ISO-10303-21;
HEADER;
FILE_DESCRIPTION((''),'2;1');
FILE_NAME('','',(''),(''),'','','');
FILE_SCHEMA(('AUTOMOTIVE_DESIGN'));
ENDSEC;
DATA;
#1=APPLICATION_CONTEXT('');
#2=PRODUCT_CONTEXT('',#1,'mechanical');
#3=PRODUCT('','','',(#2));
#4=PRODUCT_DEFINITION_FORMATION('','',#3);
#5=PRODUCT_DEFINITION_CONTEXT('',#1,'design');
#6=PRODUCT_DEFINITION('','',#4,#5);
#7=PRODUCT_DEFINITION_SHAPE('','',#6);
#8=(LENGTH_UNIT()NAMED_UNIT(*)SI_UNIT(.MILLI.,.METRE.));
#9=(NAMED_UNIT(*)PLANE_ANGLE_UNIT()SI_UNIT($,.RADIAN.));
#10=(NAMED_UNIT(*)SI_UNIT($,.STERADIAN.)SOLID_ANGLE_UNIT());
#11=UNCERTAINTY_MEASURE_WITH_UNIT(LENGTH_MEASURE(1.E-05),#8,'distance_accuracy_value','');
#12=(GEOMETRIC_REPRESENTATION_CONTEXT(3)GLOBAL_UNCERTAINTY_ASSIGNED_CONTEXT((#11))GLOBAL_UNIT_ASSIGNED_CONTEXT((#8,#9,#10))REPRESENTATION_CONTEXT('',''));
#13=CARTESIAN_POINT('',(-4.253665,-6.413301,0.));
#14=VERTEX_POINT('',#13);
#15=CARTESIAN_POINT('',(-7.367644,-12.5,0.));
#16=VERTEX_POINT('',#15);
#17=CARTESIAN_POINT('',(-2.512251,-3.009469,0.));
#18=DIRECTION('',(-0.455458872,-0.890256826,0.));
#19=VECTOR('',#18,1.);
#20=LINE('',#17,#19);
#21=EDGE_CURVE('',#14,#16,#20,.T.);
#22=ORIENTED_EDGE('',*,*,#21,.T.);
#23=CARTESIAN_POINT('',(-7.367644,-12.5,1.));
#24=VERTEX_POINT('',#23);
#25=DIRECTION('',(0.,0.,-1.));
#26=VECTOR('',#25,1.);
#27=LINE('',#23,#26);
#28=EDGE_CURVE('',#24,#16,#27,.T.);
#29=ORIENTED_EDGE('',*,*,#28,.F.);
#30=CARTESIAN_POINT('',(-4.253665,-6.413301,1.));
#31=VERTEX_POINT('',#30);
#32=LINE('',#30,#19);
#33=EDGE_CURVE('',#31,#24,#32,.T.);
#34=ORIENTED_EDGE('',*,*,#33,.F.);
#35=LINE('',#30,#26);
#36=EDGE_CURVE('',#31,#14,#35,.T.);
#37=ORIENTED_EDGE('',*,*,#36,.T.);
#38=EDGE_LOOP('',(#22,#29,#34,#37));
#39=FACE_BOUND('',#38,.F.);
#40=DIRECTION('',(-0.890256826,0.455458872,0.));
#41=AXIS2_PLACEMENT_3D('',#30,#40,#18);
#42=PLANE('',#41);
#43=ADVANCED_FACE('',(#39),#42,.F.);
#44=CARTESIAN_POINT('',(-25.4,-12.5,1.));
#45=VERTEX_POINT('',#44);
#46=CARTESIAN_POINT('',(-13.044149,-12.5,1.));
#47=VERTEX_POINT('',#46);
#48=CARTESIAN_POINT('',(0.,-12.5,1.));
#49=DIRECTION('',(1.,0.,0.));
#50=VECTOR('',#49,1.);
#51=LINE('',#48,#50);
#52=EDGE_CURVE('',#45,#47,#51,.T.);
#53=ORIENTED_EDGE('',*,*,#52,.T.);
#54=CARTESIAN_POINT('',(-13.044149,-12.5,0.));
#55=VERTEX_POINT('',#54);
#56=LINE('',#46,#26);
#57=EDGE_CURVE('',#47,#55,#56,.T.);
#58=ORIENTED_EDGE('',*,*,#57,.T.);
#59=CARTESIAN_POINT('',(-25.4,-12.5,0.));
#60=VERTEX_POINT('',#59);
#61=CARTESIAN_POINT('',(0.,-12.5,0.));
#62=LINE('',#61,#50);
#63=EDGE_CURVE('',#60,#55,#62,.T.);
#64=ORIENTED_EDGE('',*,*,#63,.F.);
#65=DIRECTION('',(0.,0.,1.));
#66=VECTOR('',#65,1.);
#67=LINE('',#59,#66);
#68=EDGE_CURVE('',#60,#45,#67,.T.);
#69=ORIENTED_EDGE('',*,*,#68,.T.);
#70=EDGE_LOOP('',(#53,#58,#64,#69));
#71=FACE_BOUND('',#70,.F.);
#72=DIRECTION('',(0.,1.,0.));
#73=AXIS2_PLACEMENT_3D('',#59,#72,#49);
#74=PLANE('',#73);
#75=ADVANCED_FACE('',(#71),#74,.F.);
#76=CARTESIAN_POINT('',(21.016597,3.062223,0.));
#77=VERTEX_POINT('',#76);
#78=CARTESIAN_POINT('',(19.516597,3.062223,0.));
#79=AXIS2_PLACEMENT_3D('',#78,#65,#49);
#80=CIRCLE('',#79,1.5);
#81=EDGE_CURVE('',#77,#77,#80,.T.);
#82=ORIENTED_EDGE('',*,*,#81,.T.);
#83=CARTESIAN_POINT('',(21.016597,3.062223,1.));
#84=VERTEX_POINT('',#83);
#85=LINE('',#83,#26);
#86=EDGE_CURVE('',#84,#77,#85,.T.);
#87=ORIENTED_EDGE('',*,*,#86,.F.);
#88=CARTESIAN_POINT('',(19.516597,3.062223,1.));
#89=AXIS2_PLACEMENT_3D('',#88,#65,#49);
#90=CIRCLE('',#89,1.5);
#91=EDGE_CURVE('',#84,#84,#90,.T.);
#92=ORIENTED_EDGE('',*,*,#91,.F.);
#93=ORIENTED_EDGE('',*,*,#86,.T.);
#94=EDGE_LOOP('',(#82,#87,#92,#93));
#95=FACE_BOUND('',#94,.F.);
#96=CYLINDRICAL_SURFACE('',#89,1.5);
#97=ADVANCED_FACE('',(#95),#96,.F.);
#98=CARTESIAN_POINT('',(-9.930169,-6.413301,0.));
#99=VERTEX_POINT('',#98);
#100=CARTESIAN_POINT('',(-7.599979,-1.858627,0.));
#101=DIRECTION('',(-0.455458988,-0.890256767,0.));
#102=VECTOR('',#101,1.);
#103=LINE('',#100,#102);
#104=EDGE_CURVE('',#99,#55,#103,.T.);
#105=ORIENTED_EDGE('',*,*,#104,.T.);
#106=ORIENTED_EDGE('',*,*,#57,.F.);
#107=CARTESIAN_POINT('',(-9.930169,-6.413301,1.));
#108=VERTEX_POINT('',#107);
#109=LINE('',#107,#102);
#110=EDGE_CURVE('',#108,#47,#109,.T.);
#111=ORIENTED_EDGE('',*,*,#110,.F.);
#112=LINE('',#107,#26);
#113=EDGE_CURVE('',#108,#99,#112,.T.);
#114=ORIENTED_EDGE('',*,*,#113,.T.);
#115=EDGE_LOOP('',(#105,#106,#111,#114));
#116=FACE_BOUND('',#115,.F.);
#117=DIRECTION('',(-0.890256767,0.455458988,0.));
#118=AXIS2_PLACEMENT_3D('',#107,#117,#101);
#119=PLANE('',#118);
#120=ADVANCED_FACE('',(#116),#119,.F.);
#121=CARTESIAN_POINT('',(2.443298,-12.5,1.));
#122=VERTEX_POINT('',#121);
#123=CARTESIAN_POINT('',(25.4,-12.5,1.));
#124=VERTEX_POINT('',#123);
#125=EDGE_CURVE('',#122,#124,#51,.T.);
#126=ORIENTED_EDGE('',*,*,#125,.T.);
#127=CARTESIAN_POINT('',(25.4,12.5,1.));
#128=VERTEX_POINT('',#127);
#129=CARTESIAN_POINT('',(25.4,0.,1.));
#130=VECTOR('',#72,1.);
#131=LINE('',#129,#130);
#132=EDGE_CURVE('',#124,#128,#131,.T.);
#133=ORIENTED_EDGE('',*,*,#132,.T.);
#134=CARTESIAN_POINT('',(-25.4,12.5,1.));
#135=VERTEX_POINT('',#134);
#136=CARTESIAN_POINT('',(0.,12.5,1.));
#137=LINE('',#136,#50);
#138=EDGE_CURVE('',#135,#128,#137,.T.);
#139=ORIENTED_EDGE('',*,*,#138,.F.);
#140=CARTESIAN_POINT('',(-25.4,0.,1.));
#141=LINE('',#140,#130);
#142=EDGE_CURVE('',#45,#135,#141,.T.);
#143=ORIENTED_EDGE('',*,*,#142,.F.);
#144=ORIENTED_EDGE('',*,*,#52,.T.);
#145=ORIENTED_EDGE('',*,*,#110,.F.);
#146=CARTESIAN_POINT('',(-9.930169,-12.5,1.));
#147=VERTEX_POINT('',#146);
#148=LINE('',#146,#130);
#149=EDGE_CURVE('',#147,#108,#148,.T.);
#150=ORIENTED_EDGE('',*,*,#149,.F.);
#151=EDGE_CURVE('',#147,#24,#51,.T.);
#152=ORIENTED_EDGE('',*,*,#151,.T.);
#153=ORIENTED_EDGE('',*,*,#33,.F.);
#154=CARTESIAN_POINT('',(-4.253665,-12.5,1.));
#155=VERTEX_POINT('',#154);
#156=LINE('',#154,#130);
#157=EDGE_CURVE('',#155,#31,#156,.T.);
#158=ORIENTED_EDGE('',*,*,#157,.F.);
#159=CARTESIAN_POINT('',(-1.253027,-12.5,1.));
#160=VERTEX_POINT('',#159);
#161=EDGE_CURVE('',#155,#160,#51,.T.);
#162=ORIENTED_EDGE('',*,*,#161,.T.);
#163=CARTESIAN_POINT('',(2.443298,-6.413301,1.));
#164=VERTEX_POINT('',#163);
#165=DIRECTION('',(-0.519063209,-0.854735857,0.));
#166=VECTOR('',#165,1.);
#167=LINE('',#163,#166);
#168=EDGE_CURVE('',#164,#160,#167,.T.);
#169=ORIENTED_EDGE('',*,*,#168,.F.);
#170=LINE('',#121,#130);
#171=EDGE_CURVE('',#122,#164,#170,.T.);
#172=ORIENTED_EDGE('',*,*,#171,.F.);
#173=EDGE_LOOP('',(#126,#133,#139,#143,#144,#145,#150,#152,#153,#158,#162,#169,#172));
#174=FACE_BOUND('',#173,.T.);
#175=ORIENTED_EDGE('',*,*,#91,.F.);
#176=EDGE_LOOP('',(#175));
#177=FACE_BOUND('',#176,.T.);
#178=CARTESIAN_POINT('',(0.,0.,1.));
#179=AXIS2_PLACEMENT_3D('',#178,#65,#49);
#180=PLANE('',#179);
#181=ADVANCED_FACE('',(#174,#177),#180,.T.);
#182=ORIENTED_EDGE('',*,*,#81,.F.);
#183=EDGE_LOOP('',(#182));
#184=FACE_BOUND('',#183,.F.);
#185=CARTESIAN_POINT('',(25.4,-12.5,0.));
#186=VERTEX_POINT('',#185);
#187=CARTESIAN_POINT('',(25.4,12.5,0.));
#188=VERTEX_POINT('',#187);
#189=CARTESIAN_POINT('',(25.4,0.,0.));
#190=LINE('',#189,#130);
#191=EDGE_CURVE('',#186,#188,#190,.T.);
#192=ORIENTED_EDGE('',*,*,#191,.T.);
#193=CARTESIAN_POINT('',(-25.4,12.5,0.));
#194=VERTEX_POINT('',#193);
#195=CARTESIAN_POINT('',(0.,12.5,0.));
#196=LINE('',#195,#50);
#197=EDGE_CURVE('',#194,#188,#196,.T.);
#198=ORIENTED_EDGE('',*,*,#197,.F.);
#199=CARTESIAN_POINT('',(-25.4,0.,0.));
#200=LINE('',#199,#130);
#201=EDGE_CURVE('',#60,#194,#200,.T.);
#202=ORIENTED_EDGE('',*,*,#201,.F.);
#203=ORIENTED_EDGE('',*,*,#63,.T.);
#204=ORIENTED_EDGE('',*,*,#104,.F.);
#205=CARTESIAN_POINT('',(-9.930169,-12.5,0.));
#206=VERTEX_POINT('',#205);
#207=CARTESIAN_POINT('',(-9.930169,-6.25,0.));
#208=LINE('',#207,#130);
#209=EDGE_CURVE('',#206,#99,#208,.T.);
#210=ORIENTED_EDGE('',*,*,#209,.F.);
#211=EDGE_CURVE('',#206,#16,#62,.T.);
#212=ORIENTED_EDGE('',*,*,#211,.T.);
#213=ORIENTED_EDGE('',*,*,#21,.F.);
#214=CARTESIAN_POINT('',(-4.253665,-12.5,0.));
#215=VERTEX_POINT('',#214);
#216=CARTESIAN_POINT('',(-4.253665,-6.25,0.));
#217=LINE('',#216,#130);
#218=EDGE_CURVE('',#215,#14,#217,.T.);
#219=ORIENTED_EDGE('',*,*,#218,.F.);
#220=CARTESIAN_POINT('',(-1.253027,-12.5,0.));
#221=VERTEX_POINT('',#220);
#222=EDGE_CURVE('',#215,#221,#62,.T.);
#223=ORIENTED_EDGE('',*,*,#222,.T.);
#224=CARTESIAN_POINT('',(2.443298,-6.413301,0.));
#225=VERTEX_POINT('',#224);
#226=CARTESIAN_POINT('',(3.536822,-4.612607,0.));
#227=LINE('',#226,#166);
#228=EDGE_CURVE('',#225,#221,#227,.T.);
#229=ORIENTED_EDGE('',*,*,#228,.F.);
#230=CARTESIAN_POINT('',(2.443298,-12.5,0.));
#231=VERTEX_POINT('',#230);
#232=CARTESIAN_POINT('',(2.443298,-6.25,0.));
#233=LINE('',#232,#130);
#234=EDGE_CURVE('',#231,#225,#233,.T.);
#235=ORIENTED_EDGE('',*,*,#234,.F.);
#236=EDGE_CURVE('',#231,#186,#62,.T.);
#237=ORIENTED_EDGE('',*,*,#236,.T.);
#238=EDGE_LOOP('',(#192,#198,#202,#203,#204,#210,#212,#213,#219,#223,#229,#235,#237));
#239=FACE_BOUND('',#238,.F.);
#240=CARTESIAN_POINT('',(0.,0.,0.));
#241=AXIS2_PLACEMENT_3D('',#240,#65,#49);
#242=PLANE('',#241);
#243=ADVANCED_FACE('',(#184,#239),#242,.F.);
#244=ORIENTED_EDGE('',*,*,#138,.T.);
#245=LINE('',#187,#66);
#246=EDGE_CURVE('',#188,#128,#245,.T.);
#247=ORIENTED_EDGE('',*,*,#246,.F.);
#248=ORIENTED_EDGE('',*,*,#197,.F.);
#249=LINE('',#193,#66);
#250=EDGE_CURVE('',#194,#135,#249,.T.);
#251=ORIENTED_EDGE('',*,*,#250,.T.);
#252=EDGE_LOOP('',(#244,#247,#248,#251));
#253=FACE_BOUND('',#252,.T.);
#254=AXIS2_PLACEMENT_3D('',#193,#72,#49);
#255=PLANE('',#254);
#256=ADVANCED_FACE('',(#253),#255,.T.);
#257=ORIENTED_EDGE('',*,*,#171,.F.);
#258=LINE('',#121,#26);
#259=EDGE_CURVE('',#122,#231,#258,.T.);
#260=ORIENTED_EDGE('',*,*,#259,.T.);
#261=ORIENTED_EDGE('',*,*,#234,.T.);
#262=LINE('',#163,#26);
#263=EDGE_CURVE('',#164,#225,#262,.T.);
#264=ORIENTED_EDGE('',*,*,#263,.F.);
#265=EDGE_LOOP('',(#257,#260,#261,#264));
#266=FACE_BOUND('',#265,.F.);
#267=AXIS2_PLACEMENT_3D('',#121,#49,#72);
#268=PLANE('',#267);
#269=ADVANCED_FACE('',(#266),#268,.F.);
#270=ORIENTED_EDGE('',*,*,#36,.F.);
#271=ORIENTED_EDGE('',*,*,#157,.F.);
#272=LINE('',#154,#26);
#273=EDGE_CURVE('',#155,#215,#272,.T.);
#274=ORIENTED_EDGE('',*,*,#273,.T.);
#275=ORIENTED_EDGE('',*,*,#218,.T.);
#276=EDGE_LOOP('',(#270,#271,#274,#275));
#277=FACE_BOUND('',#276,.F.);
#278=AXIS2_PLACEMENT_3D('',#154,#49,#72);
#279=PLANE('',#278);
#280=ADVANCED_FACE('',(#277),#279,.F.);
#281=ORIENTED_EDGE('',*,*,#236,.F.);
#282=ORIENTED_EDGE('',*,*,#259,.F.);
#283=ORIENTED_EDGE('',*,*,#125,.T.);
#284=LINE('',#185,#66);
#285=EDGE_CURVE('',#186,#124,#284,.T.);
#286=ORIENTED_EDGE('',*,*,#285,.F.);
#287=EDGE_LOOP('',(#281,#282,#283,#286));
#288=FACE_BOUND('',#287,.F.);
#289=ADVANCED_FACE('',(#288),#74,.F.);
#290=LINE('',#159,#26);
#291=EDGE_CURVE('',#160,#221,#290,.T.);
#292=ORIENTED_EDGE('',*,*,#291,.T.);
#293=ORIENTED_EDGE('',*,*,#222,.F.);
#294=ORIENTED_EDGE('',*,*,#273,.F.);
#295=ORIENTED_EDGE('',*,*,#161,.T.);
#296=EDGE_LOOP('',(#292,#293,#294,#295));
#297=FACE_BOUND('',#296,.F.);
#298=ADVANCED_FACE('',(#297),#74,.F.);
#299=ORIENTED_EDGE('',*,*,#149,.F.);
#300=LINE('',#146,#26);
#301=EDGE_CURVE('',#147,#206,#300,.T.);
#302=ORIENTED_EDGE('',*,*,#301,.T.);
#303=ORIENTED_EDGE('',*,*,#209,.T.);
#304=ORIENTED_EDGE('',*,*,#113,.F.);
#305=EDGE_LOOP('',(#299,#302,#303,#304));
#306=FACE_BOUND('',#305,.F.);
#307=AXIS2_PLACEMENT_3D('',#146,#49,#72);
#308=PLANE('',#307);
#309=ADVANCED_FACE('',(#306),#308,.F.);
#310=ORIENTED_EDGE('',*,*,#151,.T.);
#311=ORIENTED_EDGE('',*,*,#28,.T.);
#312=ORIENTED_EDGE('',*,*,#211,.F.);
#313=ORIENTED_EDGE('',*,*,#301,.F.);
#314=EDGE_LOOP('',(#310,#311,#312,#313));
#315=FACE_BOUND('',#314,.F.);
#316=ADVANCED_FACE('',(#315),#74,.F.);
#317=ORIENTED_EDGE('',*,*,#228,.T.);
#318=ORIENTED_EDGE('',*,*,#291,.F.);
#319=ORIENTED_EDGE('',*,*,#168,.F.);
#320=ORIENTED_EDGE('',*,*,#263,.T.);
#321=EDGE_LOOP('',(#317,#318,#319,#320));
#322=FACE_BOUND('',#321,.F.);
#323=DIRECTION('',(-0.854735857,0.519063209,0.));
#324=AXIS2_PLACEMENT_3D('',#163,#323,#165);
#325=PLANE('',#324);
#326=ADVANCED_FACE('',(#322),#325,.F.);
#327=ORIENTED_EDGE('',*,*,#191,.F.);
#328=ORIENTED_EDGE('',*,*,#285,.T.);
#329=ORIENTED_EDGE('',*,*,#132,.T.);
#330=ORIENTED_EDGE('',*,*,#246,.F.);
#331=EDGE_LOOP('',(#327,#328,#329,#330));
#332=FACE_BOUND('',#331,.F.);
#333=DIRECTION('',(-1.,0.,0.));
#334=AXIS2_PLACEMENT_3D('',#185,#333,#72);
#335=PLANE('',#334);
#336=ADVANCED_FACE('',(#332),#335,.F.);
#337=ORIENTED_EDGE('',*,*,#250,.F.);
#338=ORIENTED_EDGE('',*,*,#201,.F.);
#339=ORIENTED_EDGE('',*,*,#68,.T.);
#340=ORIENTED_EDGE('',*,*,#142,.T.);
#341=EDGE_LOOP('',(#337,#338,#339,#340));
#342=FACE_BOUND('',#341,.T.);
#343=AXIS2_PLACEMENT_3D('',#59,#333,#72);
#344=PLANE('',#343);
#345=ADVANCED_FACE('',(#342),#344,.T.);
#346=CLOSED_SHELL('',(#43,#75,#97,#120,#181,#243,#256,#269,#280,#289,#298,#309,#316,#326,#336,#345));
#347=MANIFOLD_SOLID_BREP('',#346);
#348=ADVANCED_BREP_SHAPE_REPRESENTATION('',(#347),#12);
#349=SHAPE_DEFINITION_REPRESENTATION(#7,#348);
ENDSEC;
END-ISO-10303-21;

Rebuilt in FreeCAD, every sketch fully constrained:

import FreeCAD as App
import Part
import Sketcher

V = App.Vector
Q = App.Units.Quantity


def add_polygon(sketch, points):
    """Adds a closed chain of lines whose ends are joined by coincident constraints."""
    first, n = sketch.GeometryCount, len(points)
    for a, b in zip(points, points[1:] + points[:1]):
        sketch.addGeometry(Part.LineSegment(App.Vector(*a, 0), App.Vector(*b, 0)), False)
    for i in range(n):
        sketch.addConstraint(Sketcher.Constraint("Coincident", first + i, 2, first + (i + 1) % n, 1))

doc = App.newDocument("Part")
body = doc.addObject("PartDesign::Body", "Body")

sketch1 = doc.addObject("Sketcher::SketchObject", "Sketch")
body.addObject(sketch1)
sketch1.AttachmentSupport = (doc.XY_Plane, [""])
sketch1.MapMode = "FlatFace"
add_polygon(sketch1, [(-25, 12), (-25, -12), (25, -12), (25, 12)])
sketch1.addConstraint([
    Sketcher.Constraint("Vertical", 0),
    Sketcher.Constraint("Horizontal", 1),
    Sketcher.Constraint("Vertical", 2),
    Sketcher.Constraint("Horizontal", 3),
    Sketcher.Constraint("Symmetric", 0, 2, 2, 2, -1, 1),
    Sketcher.Constraint("DistanceY", 0, 2, 0, 1, Q("25 mm")),
    Sketcher.Constraint("DistanceX", 1, 1, 1, 2, Q("50.8 mm")),
])
pad1 = doc.addObject("PartDesign::Pad", "Pad")
body.addObject(pad1)
pad1.Profile = sketch1
pad1.Length = 1

sketch2 = doc.addObject("Sketcher::SketchObject", "Sketch001")
body.addObject(sketch2)
sketch2.AttachmentSupport = (doc.XY_Plane, [""])
sketch2.MapMode = "FlatFace"
sketch2.AttachmentOffset = App.Placement(V(0, 0, 1), App.Rotation())
sketch2.addGeometry(Part.Circle(V(19.5, 3.1, 0), V(0, 0, 1), 1.5), False)
sketch2.addConstraint([
    Sketcher.Constraint("Diameter", 0, Q("3 mm")),
    Sketcher.Constraint("DistanceX", -1, 1, 0, 3, Q("19.516597 mm")),
    Sketcher.Constraint("DistanceY", -1, 1, 0, 3, Q("3.062223 mm")),
])
pocket1 = doc.addObject("PartDesign::Pocket", "Pocket")
body.addObject(pocket1)
pocket1.Profile = sketch2
pocket1.Length = 25

sketch3 = doc.addObject("Sketcher::SketchObject", "Sketch002")
body.addObject(sketch3)
sketch3.AttachmentSupport = (doc.XY_Plane, [""])
sketch3.MapMode = "FlatFace"
sketch3.AttachmentOffset = App.Placement(V(0, 0, 1), App.Rotation())
add_polygon(sketch3, [(-4.3, -6.4), (-7.4, -12.5), (-4.3, -12.5)])
add_polygon(sketch3, [(2.4, -6.4), (-1.3, -12.5), (2.4, -12.5)])
add_polygon(sketch3, [(-9.9, -6.4), (-13, -12.5), (-9.9, -12.5)])
sketch3.addConstraint([
    Sketcher.Constraint("Horizontal", 1),
    Sketcher.Constraint("Vertical", 2),
    Sketcher.Constraint("Horizontal", 4),
    Sketcher.Constraint("Vertical", 5),
    Sketcher.Constraint("Horizontal", 7),
    Sketcher.Constraint("Vertical", 8),
    Sketcher.Constraint("Parallel", 0, 6),
    Sketcher.Constraint("Horizontal", 1, 2, 3, 2),
    Sketcher.Constraint("Horizontal", 2, 2, 5, 2),
    Sketcher.Constraint("Horizontal", 4, 2, 6, 2),
    Sketcher.Constraint("Horizontal", 5, 2, 8, 2),
    Sketcher.Constraint("DistanceY", 0, 2, -1, 1, Q("12.5 mm")),
    Sketcher.Constraint("DistanceY", 2, 1, 2, 2, Q("6.086699 mm")),
    Sketcher.Constraint("DistanceX", 1, 1, 1, 2, Q("3.113979 mm")),
    Sketcher.Constraint("DistanceX", -1, 1, 4, 2, Q("2.443298 mm")),
    Sketcher.Constraint("DistanceX", 4, 1, 4, 2, Q("3.696325 mm")),
    Sketcher.Constraint("DistanceX", 6, 2, -1, 1, Q("13.044149 mm")),
    Sketcher.Constraint("DistanceX", 0, 2, -1, 1, Q("7.367644 mm")),
])
pocket2 = doc.addObject("PartDesign::Pocket", "Pocket001")
body.addObject(pocket2)
pocket2.Profile = sketch3
pocket2.Length = 25

doc.recompute()
